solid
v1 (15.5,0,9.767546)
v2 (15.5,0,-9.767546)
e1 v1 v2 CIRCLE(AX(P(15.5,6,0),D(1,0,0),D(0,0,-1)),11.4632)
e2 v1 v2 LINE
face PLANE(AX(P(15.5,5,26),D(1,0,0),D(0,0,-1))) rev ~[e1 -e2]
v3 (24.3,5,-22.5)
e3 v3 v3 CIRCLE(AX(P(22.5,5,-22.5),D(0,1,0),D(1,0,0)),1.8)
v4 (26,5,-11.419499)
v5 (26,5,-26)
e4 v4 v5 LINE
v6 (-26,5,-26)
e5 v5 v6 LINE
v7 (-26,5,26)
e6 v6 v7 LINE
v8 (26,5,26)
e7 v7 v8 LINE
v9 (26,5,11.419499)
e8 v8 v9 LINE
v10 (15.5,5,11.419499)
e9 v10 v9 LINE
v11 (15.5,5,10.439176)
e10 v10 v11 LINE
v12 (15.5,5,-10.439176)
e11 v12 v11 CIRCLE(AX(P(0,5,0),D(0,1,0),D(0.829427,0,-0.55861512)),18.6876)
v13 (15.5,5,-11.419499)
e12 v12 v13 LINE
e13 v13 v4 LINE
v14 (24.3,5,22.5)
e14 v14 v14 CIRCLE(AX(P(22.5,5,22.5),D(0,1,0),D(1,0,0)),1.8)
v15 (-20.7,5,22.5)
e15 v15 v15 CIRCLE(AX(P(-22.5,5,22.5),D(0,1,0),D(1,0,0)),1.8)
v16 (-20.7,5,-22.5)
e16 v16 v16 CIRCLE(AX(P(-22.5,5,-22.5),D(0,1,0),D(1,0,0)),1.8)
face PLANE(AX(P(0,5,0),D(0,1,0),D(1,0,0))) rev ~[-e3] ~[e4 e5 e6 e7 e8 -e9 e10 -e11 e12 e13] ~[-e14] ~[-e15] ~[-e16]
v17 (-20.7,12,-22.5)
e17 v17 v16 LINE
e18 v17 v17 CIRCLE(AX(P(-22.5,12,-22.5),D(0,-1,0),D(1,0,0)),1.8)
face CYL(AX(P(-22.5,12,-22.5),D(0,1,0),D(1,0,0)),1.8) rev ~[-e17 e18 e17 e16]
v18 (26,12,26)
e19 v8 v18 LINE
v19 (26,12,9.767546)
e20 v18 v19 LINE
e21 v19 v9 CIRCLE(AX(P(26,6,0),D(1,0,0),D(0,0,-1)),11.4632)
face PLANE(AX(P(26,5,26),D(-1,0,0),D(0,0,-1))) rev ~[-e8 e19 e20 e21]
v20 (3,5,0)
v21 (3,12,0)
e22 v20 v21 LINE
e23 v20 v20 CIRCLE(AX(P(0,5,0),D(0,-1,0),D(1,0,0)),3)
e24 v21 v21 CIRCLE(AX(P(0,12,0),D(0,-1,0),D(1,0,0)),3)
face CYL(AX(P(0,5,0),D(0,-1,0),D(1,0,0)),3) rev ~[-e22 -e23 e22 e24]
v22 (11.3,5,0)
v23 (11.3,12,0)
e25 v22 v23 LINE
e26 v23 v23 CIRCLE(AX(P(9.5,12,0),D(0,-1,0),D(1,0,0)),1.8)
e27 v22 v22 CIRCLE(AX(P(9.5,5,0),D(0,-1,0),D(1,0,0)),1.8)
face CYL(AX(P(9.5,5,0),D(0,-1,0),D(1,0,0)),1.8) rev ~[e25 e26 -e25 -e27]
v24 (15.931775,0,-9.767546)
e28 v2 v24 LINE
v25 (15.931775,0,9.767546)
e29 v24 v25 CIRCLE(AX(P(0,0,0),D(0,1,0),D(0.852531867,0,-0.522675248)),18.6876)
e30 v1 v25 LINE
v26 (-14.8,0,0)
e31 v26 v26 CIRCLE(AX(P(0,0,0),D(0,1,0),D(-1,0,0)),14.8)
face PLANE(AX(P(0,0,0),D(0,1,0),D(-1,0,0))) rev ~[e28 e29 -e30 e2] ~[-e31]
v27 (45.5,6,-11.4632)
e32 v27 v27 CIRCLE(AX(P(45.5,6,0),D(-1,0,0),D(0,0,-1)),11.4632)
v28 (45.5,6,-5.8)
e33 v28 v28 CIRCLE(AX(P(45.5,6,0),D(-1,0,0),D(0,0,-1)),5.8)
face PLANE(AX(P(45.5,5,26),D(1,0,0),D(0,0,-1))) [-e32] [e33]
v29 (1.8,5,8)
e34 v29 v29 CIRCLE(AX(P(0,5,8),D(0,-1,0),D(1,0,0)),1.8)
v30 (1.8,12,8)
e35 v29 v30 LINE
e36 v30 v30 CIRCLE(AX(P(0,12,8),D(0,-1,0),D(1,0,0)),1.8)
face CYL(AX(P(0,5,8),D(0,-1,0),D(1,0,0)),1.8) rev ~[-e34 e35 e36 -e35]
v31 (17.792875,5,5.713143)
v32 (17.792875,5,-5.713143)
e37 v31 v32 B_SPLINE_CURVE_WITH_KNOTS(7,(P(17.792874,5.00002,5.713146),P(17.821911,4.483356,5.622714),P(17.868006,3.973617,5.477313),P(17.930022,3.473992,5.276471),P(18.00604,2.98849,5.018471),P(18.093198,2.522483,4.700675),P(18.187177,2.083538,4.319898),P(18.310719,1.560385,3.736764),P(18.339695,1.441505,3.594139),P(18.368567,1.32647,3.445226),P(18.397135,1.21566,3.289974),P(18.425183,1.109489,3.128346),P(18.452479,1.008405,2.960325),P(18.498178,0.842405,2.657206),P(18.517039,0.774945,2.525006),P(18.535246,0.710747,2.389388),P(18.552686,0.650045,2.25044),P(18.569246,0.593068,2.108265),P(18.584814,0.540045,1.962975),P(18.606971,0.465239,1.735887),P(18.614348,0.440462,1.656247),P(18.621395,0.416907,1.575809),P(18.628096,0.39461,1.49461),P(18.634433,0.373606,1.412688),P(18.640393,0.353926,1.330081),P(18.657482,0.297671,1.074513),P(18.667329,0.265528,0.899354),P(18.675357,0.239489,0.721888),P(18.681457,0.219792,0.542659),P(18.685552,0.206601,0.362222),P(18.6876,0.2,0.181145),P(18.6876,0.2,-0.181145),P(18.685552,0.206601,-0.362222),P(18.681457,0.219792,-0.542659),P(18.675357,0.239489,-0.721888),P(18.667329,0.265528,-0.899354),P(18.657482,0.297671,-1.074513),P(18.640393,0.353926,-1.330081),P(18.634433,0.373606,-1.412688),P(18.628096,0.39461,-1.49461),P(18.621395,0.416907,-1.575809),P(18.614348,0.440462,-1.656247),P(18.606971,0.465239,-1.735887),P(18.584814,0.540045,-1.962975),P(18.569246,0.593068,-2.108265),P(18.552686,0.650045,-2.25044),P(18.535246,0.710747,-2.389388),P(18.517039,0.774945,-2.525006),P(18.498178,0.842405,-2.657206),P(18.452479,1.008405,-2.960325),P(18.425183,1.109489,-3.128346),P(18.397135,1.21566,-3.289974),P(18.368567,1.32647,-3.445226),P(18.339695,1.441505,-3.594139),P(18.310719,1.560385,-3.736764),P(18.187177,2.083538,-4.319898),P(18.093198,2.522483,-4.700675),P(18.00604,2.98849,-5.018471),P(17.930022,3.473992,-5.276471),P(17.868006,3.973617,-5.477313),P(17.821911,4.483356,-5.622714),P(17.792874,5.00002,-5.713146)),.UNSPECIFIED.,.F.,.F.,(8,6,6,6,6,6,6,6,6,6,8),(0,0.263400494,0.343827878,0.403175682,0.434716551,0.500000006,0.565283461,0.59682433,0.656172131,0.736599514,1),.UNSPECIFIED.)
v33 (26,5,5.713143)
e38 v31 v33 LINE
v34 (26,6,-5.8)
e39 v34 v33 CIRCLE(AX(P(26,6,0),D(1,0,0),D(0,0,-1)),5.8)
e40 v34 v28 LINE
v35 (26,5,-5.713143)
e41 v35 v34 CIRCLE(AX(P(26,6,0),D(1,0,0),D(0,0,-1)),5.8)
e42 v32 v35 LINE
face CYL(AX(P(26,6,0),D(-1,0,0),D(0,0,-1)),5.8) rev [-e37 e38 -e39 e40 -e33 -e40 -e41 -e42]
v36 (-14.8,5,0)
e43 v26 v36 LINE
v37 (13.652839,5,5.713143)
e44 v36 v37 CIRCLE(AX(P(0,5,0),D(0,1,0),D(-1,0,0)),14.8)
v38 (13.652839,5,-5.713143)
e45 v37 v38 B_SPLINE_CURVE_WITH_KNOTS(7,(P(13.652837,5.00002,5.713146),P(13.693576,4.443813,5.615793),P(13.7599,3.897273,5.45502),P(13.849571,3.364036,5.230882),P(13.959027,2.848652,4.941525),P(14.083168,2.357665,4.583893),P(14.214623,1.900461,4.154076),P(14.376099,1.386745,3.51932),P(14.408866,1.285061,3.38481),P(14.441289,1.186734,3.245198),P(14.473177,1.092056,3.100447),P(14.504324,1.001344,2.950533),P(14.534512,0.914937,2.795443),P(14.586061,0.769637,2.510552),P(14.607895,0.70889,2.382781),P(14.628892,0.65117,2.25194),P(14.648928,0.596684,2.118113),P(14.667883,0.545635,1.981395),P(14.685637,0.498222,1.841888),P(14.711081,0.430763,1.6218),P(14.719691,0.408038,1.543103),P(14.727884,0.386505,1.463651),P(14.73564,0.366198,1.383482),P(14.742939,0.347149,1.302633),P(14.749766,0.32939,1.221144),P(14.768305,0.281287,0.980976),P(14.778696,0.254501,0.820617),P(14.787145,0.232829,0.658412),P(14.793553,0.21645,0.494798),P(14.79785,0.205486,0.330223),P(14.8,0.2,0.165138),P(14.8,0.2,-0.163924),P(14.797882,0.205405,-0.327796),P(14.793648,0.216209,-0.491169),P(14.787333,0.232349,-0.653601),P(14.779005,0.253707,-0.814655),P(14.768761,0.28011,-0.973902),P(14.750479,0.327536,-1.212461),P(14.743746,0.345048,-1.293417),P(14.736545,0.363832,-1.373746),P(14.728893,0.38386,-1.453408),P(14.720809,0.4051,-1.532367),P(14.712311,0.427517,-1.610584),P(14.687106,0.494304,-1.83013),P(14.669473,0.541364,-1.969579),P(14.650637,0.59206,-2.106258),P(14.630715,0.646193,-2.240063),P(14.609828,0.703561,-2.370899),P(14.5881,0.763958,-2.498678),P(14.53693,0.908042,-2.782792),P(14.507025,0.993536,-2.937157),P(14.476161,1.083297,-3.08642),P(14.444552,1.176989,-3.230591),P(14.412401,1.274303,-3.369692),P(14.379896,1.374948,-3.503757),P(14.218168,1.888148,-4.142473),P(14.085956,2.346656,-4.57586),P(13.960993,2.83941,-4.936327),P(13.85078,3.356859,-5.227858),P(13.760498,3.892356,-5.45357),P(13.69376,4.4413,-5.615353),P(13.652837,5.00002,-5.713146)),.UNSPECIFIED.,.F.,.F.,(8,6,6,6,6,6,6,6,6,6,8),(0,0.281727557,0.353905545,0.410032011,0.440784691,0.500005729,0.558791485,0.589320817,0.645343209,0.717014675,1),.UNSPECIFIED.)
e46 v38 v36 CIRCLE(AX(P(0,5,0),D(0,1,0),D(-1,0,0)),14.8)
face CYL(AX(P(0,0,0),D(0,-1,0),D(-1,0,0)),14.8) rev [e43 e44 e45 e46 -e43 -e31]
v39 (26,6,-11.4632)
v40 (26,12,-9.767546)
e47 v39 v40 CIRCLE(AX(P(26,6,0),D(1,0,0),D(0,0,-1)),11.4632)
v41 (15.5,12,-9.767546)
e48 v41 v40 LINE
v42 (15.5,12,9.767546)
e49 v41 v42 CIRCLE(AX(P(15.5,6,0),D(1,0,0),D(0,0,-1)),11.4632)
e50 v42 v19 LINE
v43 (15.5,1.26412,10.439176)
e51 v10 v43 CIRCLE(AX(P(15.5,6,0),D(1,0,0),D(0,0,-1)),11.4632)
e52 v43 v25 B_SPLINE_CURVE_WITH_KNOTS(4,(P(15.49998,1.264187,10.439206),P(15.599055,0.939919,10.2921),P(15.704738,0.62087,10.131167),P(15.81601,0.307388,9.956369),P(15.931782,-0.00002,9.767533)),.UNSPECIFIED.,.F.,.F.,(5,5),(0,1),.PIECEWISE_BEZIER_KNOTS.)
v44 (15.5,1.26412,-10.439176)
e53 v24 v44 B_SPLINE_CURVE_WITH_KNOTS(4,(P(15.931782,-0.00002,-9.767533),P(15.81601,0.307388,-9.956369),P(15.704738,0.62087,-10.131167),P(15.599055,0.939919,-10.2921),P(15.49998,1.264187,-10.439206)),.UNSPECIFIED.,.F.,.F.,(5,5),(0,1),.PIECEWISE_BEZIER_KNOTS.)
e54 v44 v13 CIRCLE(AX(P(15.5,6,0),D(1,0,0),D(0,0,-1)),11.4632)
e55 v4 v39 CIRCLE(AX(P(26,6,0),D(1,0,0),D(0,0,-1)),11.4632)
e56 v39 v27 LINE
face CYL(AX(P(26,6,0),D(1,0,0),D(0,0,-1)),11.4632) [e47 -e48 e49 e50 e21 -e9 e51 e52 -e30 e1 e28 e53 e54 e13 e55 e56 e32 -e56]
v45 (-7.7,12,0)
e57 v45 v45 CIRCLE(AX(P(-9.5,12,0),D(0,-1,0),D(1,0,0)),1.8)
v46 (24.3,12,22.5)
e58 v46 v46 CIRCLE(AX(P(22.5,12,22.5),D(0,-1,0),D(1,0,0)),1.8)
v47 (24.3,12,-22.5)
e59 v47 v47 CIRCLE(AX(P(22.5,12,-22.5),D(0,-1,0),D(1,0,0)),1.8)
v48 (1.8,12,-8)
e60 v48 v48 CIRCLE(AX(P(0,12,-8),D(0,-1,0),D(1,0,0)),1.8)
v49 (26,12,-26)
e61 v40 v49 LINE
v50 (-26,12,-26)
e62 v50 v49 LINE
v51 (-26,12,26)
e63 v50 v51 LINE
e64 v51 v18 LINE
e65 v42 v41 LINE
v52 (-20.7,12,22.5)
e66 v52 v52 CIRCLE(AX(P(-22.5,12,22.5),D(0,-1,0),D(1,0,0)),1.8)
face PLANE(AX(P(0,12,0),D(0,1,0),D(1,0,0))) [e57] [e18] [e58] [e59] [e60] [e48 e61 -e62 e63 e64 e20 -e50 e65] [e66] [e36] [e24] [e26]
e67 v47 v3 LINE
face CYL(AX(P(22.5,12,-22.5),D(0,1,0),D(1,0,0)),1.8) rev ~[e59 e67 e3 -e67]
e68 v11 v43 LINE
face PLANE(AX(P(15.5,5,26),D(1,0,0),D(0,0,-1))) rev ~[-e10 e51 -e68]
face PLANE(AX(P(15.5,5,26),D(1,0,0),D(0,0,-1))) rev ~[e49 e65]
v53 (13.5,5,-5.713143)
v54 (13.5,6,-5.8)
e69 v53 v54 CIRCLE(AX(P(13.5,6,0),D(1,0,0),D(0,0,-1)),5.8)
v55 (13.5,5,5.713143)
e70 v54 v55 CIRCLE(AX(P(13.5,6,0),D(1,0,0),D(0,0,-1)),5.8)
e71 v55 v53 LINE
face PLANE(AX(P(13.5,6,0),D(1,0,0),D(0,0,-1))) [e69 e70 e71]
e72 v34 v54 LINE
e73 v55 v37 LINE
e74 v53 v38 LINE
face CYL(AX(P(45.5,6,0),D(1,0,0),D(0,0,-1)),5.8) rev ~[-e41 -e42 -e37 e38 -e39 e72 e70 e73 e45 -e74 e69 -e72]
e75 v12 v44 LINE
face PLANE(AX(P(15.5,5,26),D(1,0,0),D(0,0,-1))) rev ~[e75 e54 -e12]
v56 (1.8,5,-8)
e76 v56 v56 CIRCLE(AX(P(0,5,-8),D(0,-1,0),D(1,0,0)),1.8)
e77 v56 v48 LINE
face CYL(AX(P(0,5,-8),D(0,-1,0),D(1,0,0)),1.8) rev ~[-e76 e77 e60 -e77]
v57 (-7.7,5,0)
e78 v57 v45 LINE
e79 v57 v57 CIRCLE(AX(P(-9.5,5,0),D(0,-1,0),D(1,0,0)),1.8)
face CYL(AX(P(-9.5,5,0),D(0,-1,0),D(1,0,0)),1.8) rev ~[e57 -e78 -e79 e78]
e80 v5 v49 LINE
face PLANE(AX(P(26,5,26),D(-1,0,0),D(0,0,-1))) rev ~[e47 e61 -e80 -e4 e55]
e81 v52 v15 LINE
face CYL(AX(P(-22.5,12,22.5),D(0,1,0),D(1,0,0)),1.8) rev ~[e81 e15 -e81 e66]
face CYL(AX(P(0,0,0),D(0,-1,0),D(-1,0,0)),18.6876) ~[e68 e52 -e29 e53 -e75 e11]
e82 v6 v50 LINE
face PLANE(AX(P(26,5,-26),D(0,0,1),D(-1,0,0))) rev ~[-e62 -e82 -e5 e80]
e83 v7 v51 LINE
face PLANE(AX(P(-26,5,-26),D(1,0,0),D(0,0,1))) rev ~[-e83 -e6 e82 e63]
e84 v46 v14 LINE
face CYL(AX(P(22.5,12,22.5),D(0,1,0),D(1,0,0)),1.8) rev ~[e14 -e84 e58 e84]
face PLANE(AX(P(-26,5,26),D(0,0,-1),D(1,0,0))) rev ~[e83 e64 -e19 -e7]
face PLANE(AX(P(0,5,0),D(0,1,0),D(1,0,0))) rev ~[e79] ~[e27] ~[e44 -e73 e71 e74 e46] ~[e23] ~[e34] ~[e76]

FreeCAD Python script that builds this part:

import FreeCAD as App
import Part
import Sketcher
from FreeCAD import Vector


def add_polygon(sketch, points):
    """Adds a closed chain of lines whose ends are joined by coincident constraints."""
    first, n = sketch.GeometryCount, len(points)
    for a, b in zip(points, points[1:] + points[:1]):
        sketch.addGeometry(Part.LineSegment(App.Vector(*a, 0), App.Vector(*b, 0)), False)
    for i in range(n):
        sketch.addConstraint(Sketcher.Constraint("Coincident", first + i, 2, first + (i + 1) % n, 1))

doc = App.newDocument("Part")
params = doc.addObject("Spreadsheet::Sheet", "Params")
for row, (alias, value) in enumerate([
    ("sketch1_diameter", "29.6 mm"),
    ("pad1_length", "5 mm"),
    ("sketch2_width", "52 mm"),
    ("pad2_length", "7 mm"),
    ("sketch3_diameter", "6 mm"),
    ("sketch3_diameter2", "3.6 mm"),
    ("pocket1_length", "15 mm"),
    ("sketch4_diameter", "11.6 mm"),
    ("pad3_length", "19.5 mm"),
    ("pad3_length2", "10.5 mm"),
    ("sketch5_diameter", "11.6 mm"),
    ("pocket2_length", "32 mm"),
    ("sketch6_diameter", "3.6 mm"),
    ("pocket3_length", "32 mm"),
], start=1):
    params.set(f"A{row}", alias)
    params.set(f"B{row}", "=" + value)
    params.setAlias(f"B{row}", alias)

body = doc.addObject("PartDesign::Body", "Body")

# Sketch on XZ plane
sketch1 = body.newObject("Sketcher::SketchObject", "Sketch")
sketch1.AttachmentSupport = (doc.getObject("XZ_Plane"), [""])
sketch1.MapMode = "FlatFace"
sketch1.addGeometry(Part.Circle(Vector(0, 0, 0), Vector(0, 0, 1), 18.6876), False)
sketch1.addGeometry(Part.Circle(Vector(0, 0, 0), Vector(0, 0, 1), 14.8), False)
sketch1.addConstraint(Sketcher.Constraint("Coincident", 0, 3, -1, 1))
sketch1.addConstraint(Sketcher.Constraint("Coincident", 1, 3, -1, 1))
sketch1.addConstraint(Sketcher.Constraint("Diameter", 1, 29.6))
sketch1.addConstraint(Sketcher.Constraint("Diameter", 0, 37.3752))
sketch1.setExpression("Constraints[2]", "Params.sketch1_diameter")
pad1 = body.newObject("PartDesign::Pad", "Pad")
pad1.Profile = sketch1
pad1.setExpression("Length", "Params.pad1_length")
pad1.Reversed = True

# Sketch on XZ plane
sketch2 = body.newObject("Sketcher::SketchObject", "Sketch001")
sketch2.AttachmentSupport = (doc.getObject("XZ_Plane"), [""])
sketch2.MapMode = "FlatFace"
sketch2.AttachmentOffset = App.Placement(Vector(0, 0, -5), App.Rotation())
add_polygon(sketch2, [(26, -26), (-26, -26), (-26, 26), (26, 26)])  # lines 0-3
sketch2.addConstraint(Sketcher.Constraint("Horizontal", 0))
sketch2.addConstraint(Sketcher.Constraint("Vertical", 1))
sketch2.addConstraint(Sketcher.Constraint("Horizontal", 2))
sketch2.addConstraint(Sketcher.Constraint("Vertical", 3))
sketch2.addConstraint(Sketcher.Constraint("Symmetric", 0, 2, 2, 2, -1, 1))
sketch2.addConstraint(Sketcher.Constraint("Equal", 2, 1))
sketch2.addConstraint(Sketcher.Constraint("DistanceX", 0, 2, 0, 1, 52.0))
sketch2.setExpression("Constraints[10]", "Params.sketch2_width")
pad2 = body.newObject("PartDesign::Pad", "Pad001")
pad2.Profile = sketch2
pad2.setExpression("Length", "Params.pad2_length")
pad2.Reversed = True

# Sketch on XZ plane
sketch3 = body.newObject("Sketcher::SketchObject", "Sketch002")
sketch3.AttachmentSupport = (doc.getObject("XZ_Plane"), [""])
sketch3.MapMode = "FlatFace"
sketch3.AttachmentOffset = App.Placement(Vector(0, 0, -5), App.Rotation())
sketch3.addGeometry(Part.Circle(Vector(9.5, 0, 0), Vector(0, 0, 1), 1.8), False)
sketch3.addGeometry(Part.Circle(Vector(-9.5, 0, 0), Vector(0, 0, 1), 1.8), False)
sketch3.addGeometry(Part.Circle(Vector(0, -8, 0), Vector(0, 0, 1), 1.8), False)
sketch3.addGeometry(Part.Circle(Vector(0, 8, 0), Vector(0, 0, 1), 1.8), False)
sketch3.addGeometry(Part.Circle(Vector(0, 0, 0), Vector(0, 0, 1), 3), False)
sketch3.addConstraint(Sketcher.Constraint("Coincident", 4, 3, -1, 1))
sketch3.addConstraint(Sketcher.Constraint("Equal", 0, 1))
sketch3.addConstraint(Sketcher.Constraint("Equal", 1, 2))
sketch3.addConstraint(Sketcher.Constraint("Equal", 2, 3))
sketch3.addConstraint(Sketcher.Constraint("Symmetric", 0, 3, 1, 3, -1, 1))
sketch3.addConstraint(Sketcher.Constraint("Symmetric", 2, 3, 3, 3, -1, 1))
sketch3.addConstraint(Sketcher.Constraint("PointOnObject", 0, 3, -1))
sketch3.addConstraint(Sketcher.Constraint("PointOnObject", 2, 3, -2))
sketch3.addConstraint(Sketcher.Constraint("Diameter", 4, 6.0))
sketch3.addConstraint(Sketcher.Constraint("Diameter", 0, 3.6))
sketch3.addConstraint(Sketcher.Constraint("DistanceY", 2, 3, -1, 1, 8.0))
sketch3.addConstraint(Sketcher.Constraint("DistanceX", 1, 3, 0, 3, 19.0))
sketch3.setExpression("Constraints[8]", "Params.sketch3_diameter")
sketch3.setExpression("Constraints[9]", "Params.sketch3_diameter2")
pocket1 = body.newObject("PartDesign::Pocket", "Pocket")
pocket1.Profile = sketch3
pocket1.setExpression("Length", "Params.pocket1_length")

# Sketch on YZ plane
sketch4 = body.newObject("Sketcher::SketchObject", "Sketch003")
sketch4.AttachmentSupport = (doc.getObject("YZ_Plane"), [""])
sketch4.MapMode = "FlatFace"
sketch4.AttachmentOffset = App.Placement(Vector(0, 0, 26), App.Rotation())
sketch4.addGeometry(Part.Circle(Vector(6, 0, 0), Vector(0, 0, 1), 11.4632), False)
sketch4.addGeometry(Part.Circle(Vector(6, 0, 0), Vector(0, 0, 1), 5.8), False)
sketch4.addConstraint(Sketcher.Constraint("Coincident", 1, 3, 0, 3))
sketch4.addConstraint(Sketcher.Constraint("PointOnObject", 0, 3, -1))
sketch4.addConstraint(Sketcher.Constraint("Diameter", 1, 11.6))
sketch4.addConstraint(Sketcher.Constraint("DistanceX", -1, 1, 0, 3, 6.0))
sketch4.addConstraint(Sketcher.Constraint("Diameter", 0, 22.9264))
sketch4.setExpression("Constraints[2]", "Params.sketch4_diameter")
pad3 = body.newObject("PartDesign::Pad", "Pad002")
pad3.Profile = sketch4
pad3.Type = "TwoLengths"
pad3.setExpression("Length", "Params.pad3_length")
pad3.setExpression("Length2", "Params.pad3_length2")

# Sketch on YZ plane
sketch5 = body.newObject("Sketcher::SketchObject", "Sketch004")
sketch5.AttachmentSupport = (doc.getObject("YZ_Plane"), [""])
sketch5.MapMode = "FlatFace"
sketch5.AttachmentOffset = App.Placement(Vector(0, 0, 45.5), App.Rotation())
sketch5.addGeometry(Part.Circle(Vector(6, 0, 0), Vector(0, 0, 1), 5.8), False)
sketch5.addConstraint(Sketcher.Constraint("PointOnObject", 0, 3, -1))
sketch5.addConstraint(Sketcher.Constraint("Diameter", 0, 11.6))
sketch5.addConstraint(Sketcher.Constraint("DistanceX", -1, 1, 0, 3, 6.0))
sketch5.setExpression("Constraints[1]", "Params.sketch5_diameter")
pocket2 = body.newObject("PartDesign::Pocket", "Pocket001")
pocket2.Profile = sketch5
pocket2.setExpression("Length", "Params.pocket2_length")

# Sketch on XZ plane
sketch6 = body.newObject("Sketcher::SketchObject", "Sketch005")
sketch6.AttachmentSupport = (doc.getObject("XZ_Plane"), [""])
sketch6.MapMode = "FlatFace"
sketch6.AttachmentOffset = App.Placement(Vector(0, 0, -12), App.Rotation())
sketch6.addGeometry(Part.Circle(Vector(-22.5, -22.5, 0), Vector(0, 0, 1), 1.8), False)
sketch6.addGeometry(Part.Circle(Vector(22.5, -22.5, 0), Vector(0, 0, 1), 1.8), False)
sketch6.addGeometry(Part.Circle(Vector(22.5, 22.5, 0), Vector(0, 0, 1), 1.8), False)
sketch6.addGeometry(Part.Circle(Vector(-22.5, 22.5, 0), Vector(0, 0, 1), 1.8), False)
sketch6.addConstraint(Sketcher.Constraint("Equal", 0, 1))
sketch6.addConstraint(Sketcher.Constraint("Equal", 1, 2))
sketch6.addConstraint(Sketcher.Constraint("Equal", 2, 3))
sketch6.addConstraint(Sketcher.Constraint("Symmetric", 0, 3, 2, 3, -1, 1))
sketch6.addConstraint(Sketcher.Constraint("Symmetric", 1, 3, 3, 3, -1, 1))
sketch6.addConstraint(Sketcher.Constraint("Symmetric", 0, 3, 1, 3, -2))
sketch6.addConstraint(Sketcher.Constraint("Diameter", 0, 3.6))
sketch6.addConstraint(Sketcher.Constraint("DistanceX", 0, 3, 1, 3, 45.0))
sketch6.addConstraint(Sketcher.Constraint("DistanceY", 1, 3, 2, 3, 45.0))
sketch6.setExpression("Constraints[6]", "Params.sketch6_diameter")
pocket3 = body.newObject("PartDesign::Pocket", "Pocket002")
pocket3.Profile = sketch6
pocket3.setExpression("Length", "Params.pocket3_length")
pocket3.Reversed = True

doc.recompute()
